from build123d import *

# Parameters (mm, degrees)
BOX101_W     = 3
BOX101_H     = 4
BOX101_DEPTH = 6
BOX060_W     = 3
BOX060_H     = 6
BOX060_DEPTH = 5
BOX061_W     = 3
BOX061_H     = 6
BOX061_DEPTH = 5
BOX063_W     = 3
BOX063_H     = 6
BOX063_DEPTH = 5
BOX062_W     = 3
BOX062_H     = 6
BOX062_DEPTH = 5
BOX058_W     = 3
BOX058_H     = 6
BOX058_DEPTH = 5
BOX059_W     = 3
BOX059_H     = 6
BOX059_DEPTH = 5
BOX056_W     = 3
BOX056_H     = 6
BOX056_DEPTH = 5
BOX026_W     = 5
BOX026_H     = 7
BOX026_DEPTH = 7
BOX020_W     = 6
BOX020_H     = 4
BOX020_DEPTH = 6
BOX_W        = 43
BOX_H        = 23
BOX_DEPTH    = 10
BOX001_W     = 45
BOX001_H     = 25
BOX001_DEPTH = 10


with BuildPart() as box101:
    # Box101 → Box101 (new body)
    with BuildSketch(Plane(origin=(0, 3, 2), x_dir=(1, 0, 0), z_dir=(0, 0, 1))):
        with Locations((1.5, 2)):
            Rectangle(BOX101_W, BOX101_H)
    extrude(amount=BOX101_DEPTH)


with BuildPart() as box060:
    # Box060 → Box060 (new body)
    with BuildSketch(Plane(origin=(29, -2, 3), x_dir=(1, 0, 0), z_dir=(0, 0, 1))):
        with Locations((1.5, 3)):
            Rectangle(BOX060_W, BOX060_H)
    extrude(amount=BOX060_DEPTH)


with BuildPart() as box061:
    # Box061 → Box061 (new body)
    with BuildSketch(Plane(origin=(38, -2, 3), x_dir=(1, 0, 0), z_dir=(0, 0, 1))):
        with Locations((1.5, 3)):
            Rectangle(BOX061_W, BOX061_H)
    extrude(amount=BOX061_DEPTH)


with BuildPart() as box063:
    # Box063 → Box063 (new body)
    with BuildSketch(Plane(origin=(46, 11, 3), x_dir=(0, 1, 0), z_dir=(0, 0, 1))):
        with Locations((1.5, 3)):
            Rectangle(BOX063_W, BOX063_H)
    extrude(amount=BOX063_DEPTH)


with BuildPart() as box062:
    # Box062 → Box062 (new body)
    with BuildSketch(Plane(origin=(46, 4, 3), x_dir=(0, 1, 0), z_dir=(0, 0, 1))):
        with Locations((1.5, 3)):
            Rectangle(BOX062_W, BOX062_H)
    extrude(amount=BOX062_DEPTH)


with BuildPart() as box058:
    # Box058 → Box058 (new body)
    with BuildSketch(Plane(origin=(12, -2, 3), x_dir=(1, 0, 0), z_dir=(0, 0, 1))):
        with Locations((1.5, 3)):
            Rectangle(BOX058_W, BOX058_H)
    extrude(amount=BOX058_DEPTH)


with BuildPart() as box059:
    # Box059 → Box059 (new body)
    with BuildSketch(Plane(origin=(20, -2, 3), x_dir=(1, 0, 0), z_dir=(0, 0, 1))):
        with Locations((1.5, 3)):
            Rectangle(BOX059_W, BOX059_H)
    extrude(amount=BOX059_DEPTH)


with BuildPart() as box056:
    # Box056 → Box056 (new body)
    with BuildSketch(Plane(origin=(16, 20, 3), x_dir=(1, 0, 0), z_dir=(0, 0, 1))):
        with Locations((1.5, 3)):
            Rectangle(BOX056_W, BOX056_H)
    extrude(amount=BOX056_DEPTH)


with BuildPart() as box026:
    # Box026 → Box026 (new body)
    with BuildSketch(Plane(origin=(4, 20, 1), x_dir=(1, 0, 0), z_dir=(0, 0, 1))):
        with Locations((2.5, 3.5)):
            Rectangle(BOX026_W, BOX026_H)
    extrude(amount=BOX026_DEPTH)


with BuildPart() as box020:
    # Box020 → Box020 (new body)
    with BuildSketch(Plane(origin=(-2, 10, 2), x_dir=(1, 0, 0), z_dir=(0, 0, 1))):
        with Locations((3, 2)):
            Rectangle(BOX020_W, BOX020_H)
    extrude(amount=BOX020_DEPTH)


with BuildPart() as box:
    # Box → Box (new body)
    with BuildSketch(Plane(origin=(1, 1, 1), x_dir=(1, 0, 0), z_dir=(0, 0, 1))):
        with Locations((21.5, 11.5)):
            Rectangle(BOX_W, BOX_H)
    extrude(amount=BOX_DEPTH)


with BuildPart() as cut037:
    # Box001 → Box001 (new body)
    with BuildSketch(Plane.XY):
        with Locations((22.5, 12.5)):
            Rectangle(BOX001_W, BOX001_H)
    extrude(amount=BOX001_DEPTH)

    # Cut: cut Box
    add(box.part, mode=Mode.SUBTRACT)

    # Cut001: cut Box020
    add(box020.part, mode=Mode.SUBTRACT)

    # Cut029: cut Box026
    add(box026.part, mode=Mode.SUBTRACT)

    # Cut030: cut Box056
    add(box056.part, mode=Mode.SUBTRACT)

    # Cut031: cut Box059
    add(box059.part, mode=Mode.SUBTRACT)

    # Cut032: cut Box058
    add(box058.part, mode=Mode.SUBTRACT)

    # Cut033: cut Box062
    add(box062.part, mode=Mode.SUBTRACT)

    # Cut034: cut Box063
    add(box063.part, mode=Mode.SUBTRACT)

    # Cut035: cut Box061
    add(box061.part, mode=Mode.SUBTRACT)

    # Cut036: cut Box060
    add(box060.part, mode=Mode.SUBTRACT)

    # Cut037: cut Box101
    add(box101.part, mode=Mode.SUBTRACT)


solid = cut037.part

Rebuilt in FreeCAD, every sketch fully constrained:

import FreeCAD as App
import Part
import Sketcher
from FreeCAD import Vector

doc = App.newDocument("Part")
body = doc.addObject("PartDesign::Body", "Body")

# Sketch on XY plane
sketch1 = body.newObject("Sketcher::SketchObject", "Sketch")
sketch1.AttachmentSupport = (doc.getObject("XY_Plane"), [""])
sketch1.MapMode = "FlatFace"
sketch1.AttachmentOffset = App.Placement(Vector(0, 0, 2), App.Rotation())
sketch1.addGeometry([
    Part.LineSegment(Vector(0, 7, 0), Vector(0, 3, 0)),
    Part.LineSegment(Vector(0, 3, 0), Vector(3, 3, 0)),
    Part.LineSegment(Vector(3, 3, 0), Vector(3, 7, 0)),
    Part.LineSegment(Vector(3, 7, 0), Vector(0, 7, 0)),
], False)
sketch1.addConstraint([
    Sketcher.Constraint("Coincident", 0, 2, 1, 1),
    Sketcher.Constraint("Coincident", 1, 2, 2, 1),
    Sketcher.Constraint("Coincident", 2, 2, 3, 1),
    Sketcher.Constraint("Coincident", 3, 2, 0, 1),
    Sketcher.Constraint("Vertical", 0),
    Sketcher.Constraint("Horizontal", 1),
    Sketcher.Constraint("Vertical", 2),
    Sketcher.Constraint("Horizontal", 3),
    Sketcher.Constraint("PointOnObject", 0, 2, -2),
    Sketcher.Constraint("DistanceX", 1, 1, 1, 2, 3.0),
    Sketcher.Constraint("DistanceY", 0, 2, 0, 1, 4.0),
    Sketcher.Constraint("DistanceY", -1, 1, 0, 2, 3.0),
])
pad1 = body.newObject("PartDesign::Pad", "Pad")
pad1.Profile = sketch1
pad1.Length = 6
body2 = doc.addObject("PartDesign::Body", "Body001")

# Sketch on XY plane
sketch2 = body2.newObject("Sketcher::SketchObject", "Sketch001")
sketch2.AttachmentSupport = (doc.getObject("XY_Plane001"), [""])
sketch2.MapMode = "FlatFace"
sketch2.AttachmentOffset = App.Placement(Vector(0, 0, 3), App.Rotation())
sketch2.addGeometry([
    Part.LineSegment(Vector(29, 4, 0), Vector(29, -2, 0)),
    Part.LineSegment(Vector(29, -2, 0), Vector(32, -2, 0)),
    Part.LineSegment(Vector(32, -2, 0), Vector(32, 4, 0)),
    Part.LineSegment(Vector(32, 4, 0), Vector(29, 4, 0)),
], False)
sketch2.addConstraint([
    Sketcher.Constraint("Coincident", 0, 2, 1, 1),
    Sketcher.Constraint("Coincident", 1, 2, 2, 1),
    Sketcher.Constraint("Coincident", 2, 2, 3, 1),
    Sketcher.Constraint("Coincident", 3, 2, 0, 1),
    Sketcher.Constraint("Vertical", 0),
    Sketcher.Constraint("Horizontal", 1),
    Sketcher.Constraint("Vertical", 2),
    Sketcher.Constraint("Horizontal", 3),
    Sketcher.Constraint("DistanceX", 1, 1, 1, 2, 3.0),
    Sketcher.Constraint("DistanceY", 0, 2, 0, 1, 6.0),
    Sketcher.Constraint("DistanceX", -1, 1, 0, 2, 29.0),
    Sketcher.Constraint("DistanceY", 0, 2, -1, 1, 2.0),
])
pad2 = body2.newObject("PartDesign::Pad", "Pad001")
pad2.Profile = sketch2
pad2.Length = 5
body3 = doc.addObject("PartDesign::Body", "Body002")

# Sketch on XY plane
sketch3 = body3.newObject("Sketcher::SketchObject", "Sketch002")
sketch3.AttachmentSupport = (doc.getObject("XY_Plane002"), [""])
sketch3.MapMode = "FlatFace"
sketch3.AttachmentOffset = App.Placement(Vector(0, 0, 3), App.Rotation())
sketch3.addGeometry([
    Part.LineSegment(Vector(38, 4, 0), Vector(38, -2, 0)),
    Part.LineSegment(Vector(38, -2, 0), Vector(41, -2, 0)),
    Part.LineSegment(Vector(41, -2, 0), Vector(41, 4, 0)),
    Part.LineSegment(Vector(41, 4, 0), Vector(38, 4, 0)),
], False)
sketch3.addConstraint([
    Sketcher.Constraint("Coincident", 0, 2, 1, 1),
    Sketcher.Constraint("Coincident", 1, 2, 2, 1),
    Sketcher.Constraint("Coincident", 2, 2, 3, 1),
    Sketcher.Constraint("Coincident", 3, 2, 0, 1),
    Sketcher.Constraint("Vertical", 0),
    Sketcher.Constraint("Horizontal", 1),
    Sketcher.Constraint("Vertical", 2),
    Sketcher.Constraint("Horizontal", 3),
    Sketcher.Constraint("DistanceX", 1, 1, 1, 2, 3.0),
    Sketcher.Constraint("DistanceY", 0, 2, 0, 1, 6.0),
    Sketcher.Constraint("DistanceX", -1, 1, 0, 2, 38.0),
    Sketcher.Constraint("DistanceY", 0, 2, -1, 1, 2.0),
])
pad3 = body3.newObject("PartDesign::Pad", "Pad002")
pad3.Profile = sketch3
pad3.Length = 5
body4 = doc.addObject("PartDesign::Body", "Body003")

# Sketch on XY plane
sketch4 = body4.newObject("Sketcher::SketchObject", "Sketch003")
sketch4.AttachmentSupport = (doc.getObject("XY_Plane003"), [""])
sketch4.MapMode = "FlatFace"
sketch4.AttachmentOffset = App.Placement(Vector(0, 0, 3), App.Rotation())
sketch4.addGeometry([
    Part.LineSegment(Vector(40, 11, 0), Vector(46, 11, 0)),
    Part.LineSegment(Vector(46, 11, 0), Vector(46, 14, 0)),
    Part.LineSegment(Vector(46, 14, 0), Vector(40, 14, 0)),
    Part.LineSegment(Vector(40, 14, 0), Vector(40, 11, 0)),
], False)
sketch4.addConstraint([
    Sketcher.Constraint("Coincident", 0, 2, 1, 1),
    Sketcher.Constraint("Coincident", 1, 2, 2, 1),
    Sketcher.Constraint("Coincident", 2, 2, 3, 1),
    Sketcher.Constraint("Coincident", 3, 2, 0, 1),
    Sketcher.Constraint("Horizontal", 0),
    Sketcher.Constraint("Vertical", 1),
    Sketcher.Constraint("Horizontal", 2),
    Sketcher.Constraint("Vertical", 3),
    Sketcher.Constraint("DistanceX", 0, 1, 0, 2, 6.0),
    Sketcher.Constraint("DistanceY", 1, 1, 1, 2, 3.0),
    Sketcher.Constraint("DistanceX", -1, 1, 0, 2, 46.0),
    Sketcher.Constraint("DistanceY", -1, 1, 0, 2, 11.0),
])
pad4 = body4.newObject("PartDesign::Pad", "Pad003")
pad4.Profile = sketch4
pad4.Length = 5
body5 = doc.addObject("PartDesign::Body", "Body004")

# Sketch on XY plane
sketch5 = body5.newObject("Sketcher::SketchObject", "Sketch004")
sketch5.AttachmentSupport = (doc.getObject("XY_Plane004"), [""])
sketch5.MapMode = "FlatFace"
sketch5.AttachmentOffset = App.Placement(Vector(0, 0, 3), App.Rotation())
sketch5.addGeometry([
    Part.LineSegment(Vector(40, 4, 0), Vector(46, 4, 0)),
    Part.LineSegment(Vector(46, 4, 0), Vector(46, 7, 0)),
    Part.LineSegment(Vector(46, 7, 0), Vector(40, 7, 0)),
    Part.LineSegment(Vector(40, 7, 0), Vector(40, 4, 0)),
], False)
sketch5.addConstraint([
    Sketcher.Constraint("Coincident", 0, 2, 1, 1),
    Sketcher.Constraint("Coincident", 1, 2, 2, 1),
    Sketcher.Constraint("Coincident", 2, 2, 3, 1),
    Sketcher.Constraint("Coincident", 3, 2, 0, 1),
    Sketcher.Constraint("Horizontal", 0),
    Sketcher.Constraint("Vertical", 1),
    Sketcher.Constraint("Horizontal", 2),
    Sketcher.Constraint("Vertical", 3),
    Sketcher.Constraint("DistanceX", 0, 1, 0, 2, 6.0),
    Sketcher.Constraint("DistanceY", 1, 1, 1, 2, 3.0),
    Sketcher.Constraint("DistanceX", -1, 1, 0, 2, 46.0),
    Sketcher.Constraint("DistanceY", -1, 1, 0, 2, 4.0),
])
pad5 = body5.newObject("PartDesign::Pad", "Pad004")
pad5.Profile = sketch5
pad5.Length = 5
body6 = doc.addObject("PartDesign::Body", "Body005")

# Sketch on XY plane
sketch6 = body6.newObject("Sketcher::SketchObject", "Sketch005")
sketch6.AttachmentSupport = (doc.getObject("XY_Plane005"), [""])
sketch6.MapMode = "FlatFace"
sketch6.AttachmentOffset = App.Placement(Vector(0, 0, 3), App.Rotation())
sketch6.addGeometry([
    Part.LineSegment(Vector(12, 4, 0), Vector(12, -2, 0)),
    Part.LineSegment(Vector(12, -2, 0), Vector(15, -2, 0)),
    Part.LineSegment(Vector(15, -2, 0), Vector(15, 4, 0)),
    Part.LineSegment(Vector(15, 4, 0), Vector(12, 4, 0)),
], False)
sketch6.addConstraint([
    Sketcher.Constraint("Coincident", 0, 2, 1, 1),
    Sketcher.Constraint("Coincident", 1, 2, 2, 1),
    Sketcher.Constraint("Coincident", 2, 2, 3, 1),
    Sketcher.Constraint("Coincident", 3, 2, 0, 1),
    Sketcher.Constraint("Vertical", 0),
    Sketcher.Constraint("Horizontal", 1),
    Sketcher.Constraint("Vertical", 2),
    Sketcher.Constraint("Horizontal", 3),
    Sketcher.Constraint("DistanceX", 1, 1, 1, 2, 3.0),
    Sketcher.Constraint("DistanceY", 0, 2, 0, 1, 6.0),
    Sketcher.Constraint("DistanceX", -1, 1, 0, 2, 12.0),
    Sketcher.Constraint("DistanceY", 0, 2, -1, 1, 2.0),
])
pad6 = body6.newObject("PartDesign::Pad", "Pad005")
pad6.Profile = sketch6
pad6.Length = 5
body7 = doc.addObject("PartDesign::Body", "Body006")

# Sketch on XY plane
sketch7 = body7.newObject("Sketcher::SketchObject", "Sketch006")
sketch7.AttachmentSupport = (doc.getObject("XY_Plane006"), [""])
sketch7.MapMode = "FlatFace"
sketch7.AttachmentOffset = App.Placement(Vector(0, 0, 3), App.Rotation())
sketch7.addGeometry([
    Part.LineSegment(Vector(20, 4, 0), Vector(20, -2, 0)),
    Part.LineSegment(Vector(20, -2, 0), Vector(23, -2, 0)),
    Part.LineSegment(Vector(23, -2, 0), Vector(23, 4, 0)),
    Part.LineSegment(Vector(23, 4, 0), Vector(20, 4, 0)),
], False)
sketch7.addConstraint([
    Sketcher.Constraint("Coincident", 0, 2, 1, 1),
    Sketcher.Constraint("Coincident", 1, 2, 2, 1),
    Sketcher.Constraint("Coincident", 2, 2, 3, 1),
    Sketcher.Constraint("Coincident", 3, 2, 0, 1),
    Sketcher.Constraint("Vertical", 0),
    Sketcher.Constraint("Horizontal", 1),
    Sketcher.Constraint("Vertical", 2),
    Sketcher.Constraint("Horizontal", 3),
    Sketcher.Constraint("DistanceX", 1, 1, 1, 2, 3.0),
    Sketcher.Constraint("DistanceY", 0, 2, 0, 1, 6.0),
    Sketcher.Constraint("DistanceX", -1, 1, 0, 2, 20.0),
    Sketcher.Constraint("DistanceY", 0, 2, -1, 1, 2.0),
])
pad7 = body7.newObject("PartDesign::Pad", "Pad006")
pad7.Profile = sketch7
pad7.Length = 5
body8 = doc.addObject("PartDesign::Body", "Body007")

# Sketch on XY plane
sketch8 = body8.newObject("Sketcher::SketchObject", "Sketch007")
sketch8.AttachmentSupport = (doc.getObject("XY_Plane007"), [""])
sketch8.MapMode = "FlatFace"
sketch8.AttachmentOffset = App.Placement(Vector(0, 0, 3), App.Rotation())
sketch8.addGeometry([
    Part.LineSegment(Vector(16, 26, 0), Vector(16, 20, 0)),
    Part.LineSegment(Vector(16, 20, 0), Vector(19, 20, 0)),
    Part.LineSegment(Vector(19, 20, 0), Vector(19, 26, 0)),
    Part.LineSegment(Vector(19, 26, 0), Vector(16, 26, 0)),
], False)
sketch8.addConstraint([
    Sketcher.Constraint("Coincident", 0, 2, 1, 1),
    Sketcher.Constraint("Coincident", 1, 2, 2, 1),
    Sketcher.Constraint("Coincident", 2, 2, 3, 1),
    Sketcher.Constraint("Coincident", 3, 2, 0, 1),
    Sketcher.Constraint("Vertical", 0),
    Sketcher.Constraint("Horizontal", 1),
    Sketcher.Constraint("Vertical", 2),
    Sketcher.Constraint("Horizontal", 3),
    Sketcher.Constraint("DistanceX", 1, 1, 1, 2, 3.0),
    Sketcher.Constraint("DistanceY", 0, 2, 0, 1, 6.0),
    Sketcher.Constraint("DistanceX", -1, 1, 0, 2, 16.0),
    Sketcher.Constraint("DistanceY", -1, 1, 0, 2, 20.0),
])
pad8 = body8.newObject("PartDesign::Pad", "Pad007")
pad8.Profile = sketch8
pad8.Length = 5
body9 = doc.addObject("PartDesign::Body", "Body008")

# Sketch on XY plane
sketch9 = body9.newObject("Sketcher::SketchObject", "Sketch008")
sketch9.AttachmentSupport = (doc.getObject("XY_Plane008"), [""])
sketch9.MapMode = "FlatFace"
sketch9.AttachmentOffset = App.Placement(Vector(0, 0, 1), App.Rotation())
sketch9.addGeometry([
    Part.LineSegment(Vector(4, 27, 0), Vector(4, 20, 0)),
    Part.LineSegment(Vector(4, 20, 0), Vector(9, 20, 0)),
    Part.LineSegment(Vector(9, 20, 0), Vector(9, 27, 0)),
    Part.LineSegment(Vector(9, 27, 0), Vector(4, 27, 0)),
], False)
sketch9.addConstraint([
    Sketcher.Constraint("Coincident", 0, 2, 1, 1),
    Sketcher.Constraint("Coincident", 1, 2, 2, 1),
    Sketcher.Constraint("Coincident", 2, 2, 3, 1),
    Sketcher.Constraint("Coincident", 3, 2, 0, 1),
    Sketcher.Constraint("Vertical", 0),
    Sketcher.Constraint("Horizontal", 1),
    Sketcher.Constraint("Vertical", 2),
    Sketcher.Constraint("Horizontal", 3),
    Sketcher.Constraint("DistanceX", 1, 1, 1, 2, 5.0),
    Sketcher.Constraint("DistanceY", 0, 2, 0, 1, 7.0),
    Sketcher.Constraint("DistanceX", -1, 1, 0, 2, 4.0),
    Sketcher.Constraint("DistanceY", -1, 1, 0, 2, 20.0),
])
pad9 = body9.newObject("PartDesign::Pad", "Pad008")
pad9.Profile = sketch9
pad9.Length = 7
body10 = doc.addObject("PartDesign::Body", "Body009")

# Sketch on XY plane
sketch10 = body10.newObject("Sketcher::SketchObject", "Sketch009")
sketch10.AttachmentSupport = (doc.getObject("XY_Plane009"), [""])
sketch10.MapMode = "FlatFace"
sketch10.AttachmentOffset = App.Placement(Vector(0, 0, 2), App.Rotation())
sketch10.addGeometry([
    Part.LineSegment(Vector(-2, 14, 0), Vector(-2, 10, 0)),
    Part.LineSegment(Vector(-2, 10, 0), Vector(4, 10, 0)),
    Part.LineSegment(Vector(4, 10, 0), Vector(4, 14, 0)),
    Part.LineSegment(Vector(4, 14, 0), Vector(-2, 14, 0)),
], False)
sketch10.addConstraint([
    Sketcher.Constraint("Coincident", 0, 2, 1, 1),
    Sketcher.Constraint("Coincident", 1, 2, 2, 1),
    Sketcher.Constraint("Coincident", 2, 2, 3, 1),
    Sketcher.Constraint("Coincident", 3, 2, 0, 1),
    Sketcher.Constraint("Vertical", 0),
    Sketcher.Constraint("Horizontal", 1),
    Sketcher.Constraint("Vertical", 2),
    Sketcher.Constraint("Horizontal", 3),
    Sketcher.Constraint("DistanceX", 1, 1, 1, 2, 6.0),
    Sketcher.Constraint("DistanceY", 0, 2, 0, 1, 4.0),
    Sketcher.Constraint("DistanceX", 0, 2, -1, 1, 2.0),
    Sketcher.Constraint("DistanceY", -1, 1, 0, 2, 10.0),
])
pad10 = body10.newObject("PartDesign::Pad", "Pad009")
pad10.Profile = sketch10
pad10.Length = 6
body11 = doc.addObject("PartDesign::Body", "Body010")

# Sketch on XY plane
sketch11 = body11.newObject("Sketcher::SketchObject", "Sketch010")
sketch11.AttachmentSupport = (doc.getObject("XY_Plane010"), [""])
sketch11.MapMode = "FlatFace"
sketch11.AttachmentOffset = App.Placement(Vector(0, 0, 1), App.Rotation())
sketch11.addGeometry([
    Part.LineSegment(Vector(1, 24, 0), Vector(1, 1, 0)),
    Part.LineSegment(Vector(1, 1, 0), Vector(44, 1, 0)),
    Part.LineSegment(Vector(44, 1, 0), Vector(44, 24, 0)),
    Part.LineSegment(Vector(44, 24, 0), Vector(1, 24, 0)),
], False)
sketch11.addConstraint([
    Sketcher.Constraint("Coincident", 0, 2, 1, 1),
    Sketcher.Constraint("Coincident", 1, 2, 2, 1),
    Sketcher.Constraint("Coincident", 2, 2, 3, 1),
    Sketcher.Constraint("Coincident", 3, 2, 0, 1),
    Sketcher.Constraint("Vertical", 0),
    Sketcher.Constraint("Horizontal", 1),
    Sketcher.Constraint("Vertical", 2),
    Sketcher.Constraint("Horizontal", 3),
    Sketcher.Constraint("DistanceX", 1, 1, 1, 2, 43.0),
    Sketcher.Constraint("DistanceY", 0, 2, 0, 1, 23.0),
    Sketcher.Constraint("DistanceX", -1, 1, 0, 2, 1.0),
    Sketcher.Constraint("DistanceY", -1, 1, 0, 2, 1.0),
])
pad11 = body11.newObject("PartDesign::Pad", "Pad010")
pad11.Profile = sketch11
pad11.Length = 10
body12 = doc.addObject("PartDesign::Body", "Body011")

# Sketch on XY plane
sketch12 = body12.newObject("Sketcher::SketchObject", "Sketch011")
sketch12.AttachmentSupport = (doc.getObject("XY_Plane011"), [""])
sketch12.MapMode = "FlatFace"
sketch12.addGeometry([
    Part.LineSegment(Vector(0, 25, 0), Vector(0, 0, 0)),
    Part.LineSegment(Vector(0, 0, 0), Vector(45, 0, 0)),
    Part.LineSegment(Vector(45, 0, 0), Vector(45, 25, 0)),
    Part.LineSegment(Vector(45, 25, 0), Vector(0, 25, 0)),
], False)
sketch12.addConstraint([
    Sketcher.Constraint("Coincident", 0, 2, 1, 1),
    Sketcher.Constraint("Coincident", 1, 2, 2, 1),
    Sketcher.Constraint("Coincident", 2, 2, 3, 1),
    Sketcher.Constraint("Coincident", 3, 2, 0, 1),
    Sketcher.Constraint("Vertical", 0),
    Sketcher.Constraint("Horizontal", 1),
    Sketcher.Constraint("Vertical", 2),
    Sketcher.Constraint("Horizontal", 3),
    Sketcher.Constraint("Coincident", 0, 2, -1, 1),
    Sketcher.Constraint("DistanceX", 1, 1, 1, 2, 45.0),
    Sketcher.Constraint("DistanceY", 0, 2, 0, 1, 25.0),
])
pad12 = body12.newObject("PartDesign::Pad", "Pad011")
pad12.Profile = sketch12
pad12.Length = 10
doc.recompute()

boolean = body12.newObject("PartDesign::Boolean", "Boolean")
boolean.Type = "Cut"
boolean.addObjects([body11])
doc.recompute()

boolean2 = body12.newObject("PartDesign::Boolean", "Boolean001")
boolean2.Type = "Cut"
boolean2.addObjects([body10])
doc.recompute()

boolean3 = body12.newObject("PartDesign::Boolean", "Boolean002")
boolean3.Type = "Cut"
boolean3.addObjects([body9])
doc.recompute()

boolean4 = body12.newObject("PartDesign::Boolean", "Boolean003")
boolean4.Type = "Cut"
boolean4.addObjects([body8])
doc.recompute()

boolean5 = body12.newObject("PartDesign::Boolean", "Boolean004")
boolean5.Type = "Cut"
boolean5.addObjects([body7])
doc.recompute()

boolean6 = body12.newObject("PartDesign::Boolean", "Boolean005")
boolean6.Type = "Cut"
boolean6.addObjects([body6])
doc.recompute()

boolean7 = body12.newObject("PartDesign::Boolean", "Boolean006")
boolean7.Type = "Cut"
boolean7.addObjects([body5])
doc.recompute()

boolean8 = body12.newObject("PartDesign::Boolean", "Boolean007")
boolean8.Type = "Cut"
boolean8.addObjects([body4])
doc.recompute()

boolean9 = body12.newObject("PartDesign::Boolean", "Boolean008")
boolean9.Type = "Cut"
boolean9.addObjects([body3])
doc.recompute()

boolean10 = body12.newObject("PartDesign::Boolean", "Boolean009")
boolean10.Type = "Cut"
boolean10.addObjects([body2])
doc.recompute()

boolean11 = body12.newObject("PartDesign::Boolean", "Boolean010")
boolean11.Type = "Cut"
boolean11.addObjects([body])

doc.recompute()
